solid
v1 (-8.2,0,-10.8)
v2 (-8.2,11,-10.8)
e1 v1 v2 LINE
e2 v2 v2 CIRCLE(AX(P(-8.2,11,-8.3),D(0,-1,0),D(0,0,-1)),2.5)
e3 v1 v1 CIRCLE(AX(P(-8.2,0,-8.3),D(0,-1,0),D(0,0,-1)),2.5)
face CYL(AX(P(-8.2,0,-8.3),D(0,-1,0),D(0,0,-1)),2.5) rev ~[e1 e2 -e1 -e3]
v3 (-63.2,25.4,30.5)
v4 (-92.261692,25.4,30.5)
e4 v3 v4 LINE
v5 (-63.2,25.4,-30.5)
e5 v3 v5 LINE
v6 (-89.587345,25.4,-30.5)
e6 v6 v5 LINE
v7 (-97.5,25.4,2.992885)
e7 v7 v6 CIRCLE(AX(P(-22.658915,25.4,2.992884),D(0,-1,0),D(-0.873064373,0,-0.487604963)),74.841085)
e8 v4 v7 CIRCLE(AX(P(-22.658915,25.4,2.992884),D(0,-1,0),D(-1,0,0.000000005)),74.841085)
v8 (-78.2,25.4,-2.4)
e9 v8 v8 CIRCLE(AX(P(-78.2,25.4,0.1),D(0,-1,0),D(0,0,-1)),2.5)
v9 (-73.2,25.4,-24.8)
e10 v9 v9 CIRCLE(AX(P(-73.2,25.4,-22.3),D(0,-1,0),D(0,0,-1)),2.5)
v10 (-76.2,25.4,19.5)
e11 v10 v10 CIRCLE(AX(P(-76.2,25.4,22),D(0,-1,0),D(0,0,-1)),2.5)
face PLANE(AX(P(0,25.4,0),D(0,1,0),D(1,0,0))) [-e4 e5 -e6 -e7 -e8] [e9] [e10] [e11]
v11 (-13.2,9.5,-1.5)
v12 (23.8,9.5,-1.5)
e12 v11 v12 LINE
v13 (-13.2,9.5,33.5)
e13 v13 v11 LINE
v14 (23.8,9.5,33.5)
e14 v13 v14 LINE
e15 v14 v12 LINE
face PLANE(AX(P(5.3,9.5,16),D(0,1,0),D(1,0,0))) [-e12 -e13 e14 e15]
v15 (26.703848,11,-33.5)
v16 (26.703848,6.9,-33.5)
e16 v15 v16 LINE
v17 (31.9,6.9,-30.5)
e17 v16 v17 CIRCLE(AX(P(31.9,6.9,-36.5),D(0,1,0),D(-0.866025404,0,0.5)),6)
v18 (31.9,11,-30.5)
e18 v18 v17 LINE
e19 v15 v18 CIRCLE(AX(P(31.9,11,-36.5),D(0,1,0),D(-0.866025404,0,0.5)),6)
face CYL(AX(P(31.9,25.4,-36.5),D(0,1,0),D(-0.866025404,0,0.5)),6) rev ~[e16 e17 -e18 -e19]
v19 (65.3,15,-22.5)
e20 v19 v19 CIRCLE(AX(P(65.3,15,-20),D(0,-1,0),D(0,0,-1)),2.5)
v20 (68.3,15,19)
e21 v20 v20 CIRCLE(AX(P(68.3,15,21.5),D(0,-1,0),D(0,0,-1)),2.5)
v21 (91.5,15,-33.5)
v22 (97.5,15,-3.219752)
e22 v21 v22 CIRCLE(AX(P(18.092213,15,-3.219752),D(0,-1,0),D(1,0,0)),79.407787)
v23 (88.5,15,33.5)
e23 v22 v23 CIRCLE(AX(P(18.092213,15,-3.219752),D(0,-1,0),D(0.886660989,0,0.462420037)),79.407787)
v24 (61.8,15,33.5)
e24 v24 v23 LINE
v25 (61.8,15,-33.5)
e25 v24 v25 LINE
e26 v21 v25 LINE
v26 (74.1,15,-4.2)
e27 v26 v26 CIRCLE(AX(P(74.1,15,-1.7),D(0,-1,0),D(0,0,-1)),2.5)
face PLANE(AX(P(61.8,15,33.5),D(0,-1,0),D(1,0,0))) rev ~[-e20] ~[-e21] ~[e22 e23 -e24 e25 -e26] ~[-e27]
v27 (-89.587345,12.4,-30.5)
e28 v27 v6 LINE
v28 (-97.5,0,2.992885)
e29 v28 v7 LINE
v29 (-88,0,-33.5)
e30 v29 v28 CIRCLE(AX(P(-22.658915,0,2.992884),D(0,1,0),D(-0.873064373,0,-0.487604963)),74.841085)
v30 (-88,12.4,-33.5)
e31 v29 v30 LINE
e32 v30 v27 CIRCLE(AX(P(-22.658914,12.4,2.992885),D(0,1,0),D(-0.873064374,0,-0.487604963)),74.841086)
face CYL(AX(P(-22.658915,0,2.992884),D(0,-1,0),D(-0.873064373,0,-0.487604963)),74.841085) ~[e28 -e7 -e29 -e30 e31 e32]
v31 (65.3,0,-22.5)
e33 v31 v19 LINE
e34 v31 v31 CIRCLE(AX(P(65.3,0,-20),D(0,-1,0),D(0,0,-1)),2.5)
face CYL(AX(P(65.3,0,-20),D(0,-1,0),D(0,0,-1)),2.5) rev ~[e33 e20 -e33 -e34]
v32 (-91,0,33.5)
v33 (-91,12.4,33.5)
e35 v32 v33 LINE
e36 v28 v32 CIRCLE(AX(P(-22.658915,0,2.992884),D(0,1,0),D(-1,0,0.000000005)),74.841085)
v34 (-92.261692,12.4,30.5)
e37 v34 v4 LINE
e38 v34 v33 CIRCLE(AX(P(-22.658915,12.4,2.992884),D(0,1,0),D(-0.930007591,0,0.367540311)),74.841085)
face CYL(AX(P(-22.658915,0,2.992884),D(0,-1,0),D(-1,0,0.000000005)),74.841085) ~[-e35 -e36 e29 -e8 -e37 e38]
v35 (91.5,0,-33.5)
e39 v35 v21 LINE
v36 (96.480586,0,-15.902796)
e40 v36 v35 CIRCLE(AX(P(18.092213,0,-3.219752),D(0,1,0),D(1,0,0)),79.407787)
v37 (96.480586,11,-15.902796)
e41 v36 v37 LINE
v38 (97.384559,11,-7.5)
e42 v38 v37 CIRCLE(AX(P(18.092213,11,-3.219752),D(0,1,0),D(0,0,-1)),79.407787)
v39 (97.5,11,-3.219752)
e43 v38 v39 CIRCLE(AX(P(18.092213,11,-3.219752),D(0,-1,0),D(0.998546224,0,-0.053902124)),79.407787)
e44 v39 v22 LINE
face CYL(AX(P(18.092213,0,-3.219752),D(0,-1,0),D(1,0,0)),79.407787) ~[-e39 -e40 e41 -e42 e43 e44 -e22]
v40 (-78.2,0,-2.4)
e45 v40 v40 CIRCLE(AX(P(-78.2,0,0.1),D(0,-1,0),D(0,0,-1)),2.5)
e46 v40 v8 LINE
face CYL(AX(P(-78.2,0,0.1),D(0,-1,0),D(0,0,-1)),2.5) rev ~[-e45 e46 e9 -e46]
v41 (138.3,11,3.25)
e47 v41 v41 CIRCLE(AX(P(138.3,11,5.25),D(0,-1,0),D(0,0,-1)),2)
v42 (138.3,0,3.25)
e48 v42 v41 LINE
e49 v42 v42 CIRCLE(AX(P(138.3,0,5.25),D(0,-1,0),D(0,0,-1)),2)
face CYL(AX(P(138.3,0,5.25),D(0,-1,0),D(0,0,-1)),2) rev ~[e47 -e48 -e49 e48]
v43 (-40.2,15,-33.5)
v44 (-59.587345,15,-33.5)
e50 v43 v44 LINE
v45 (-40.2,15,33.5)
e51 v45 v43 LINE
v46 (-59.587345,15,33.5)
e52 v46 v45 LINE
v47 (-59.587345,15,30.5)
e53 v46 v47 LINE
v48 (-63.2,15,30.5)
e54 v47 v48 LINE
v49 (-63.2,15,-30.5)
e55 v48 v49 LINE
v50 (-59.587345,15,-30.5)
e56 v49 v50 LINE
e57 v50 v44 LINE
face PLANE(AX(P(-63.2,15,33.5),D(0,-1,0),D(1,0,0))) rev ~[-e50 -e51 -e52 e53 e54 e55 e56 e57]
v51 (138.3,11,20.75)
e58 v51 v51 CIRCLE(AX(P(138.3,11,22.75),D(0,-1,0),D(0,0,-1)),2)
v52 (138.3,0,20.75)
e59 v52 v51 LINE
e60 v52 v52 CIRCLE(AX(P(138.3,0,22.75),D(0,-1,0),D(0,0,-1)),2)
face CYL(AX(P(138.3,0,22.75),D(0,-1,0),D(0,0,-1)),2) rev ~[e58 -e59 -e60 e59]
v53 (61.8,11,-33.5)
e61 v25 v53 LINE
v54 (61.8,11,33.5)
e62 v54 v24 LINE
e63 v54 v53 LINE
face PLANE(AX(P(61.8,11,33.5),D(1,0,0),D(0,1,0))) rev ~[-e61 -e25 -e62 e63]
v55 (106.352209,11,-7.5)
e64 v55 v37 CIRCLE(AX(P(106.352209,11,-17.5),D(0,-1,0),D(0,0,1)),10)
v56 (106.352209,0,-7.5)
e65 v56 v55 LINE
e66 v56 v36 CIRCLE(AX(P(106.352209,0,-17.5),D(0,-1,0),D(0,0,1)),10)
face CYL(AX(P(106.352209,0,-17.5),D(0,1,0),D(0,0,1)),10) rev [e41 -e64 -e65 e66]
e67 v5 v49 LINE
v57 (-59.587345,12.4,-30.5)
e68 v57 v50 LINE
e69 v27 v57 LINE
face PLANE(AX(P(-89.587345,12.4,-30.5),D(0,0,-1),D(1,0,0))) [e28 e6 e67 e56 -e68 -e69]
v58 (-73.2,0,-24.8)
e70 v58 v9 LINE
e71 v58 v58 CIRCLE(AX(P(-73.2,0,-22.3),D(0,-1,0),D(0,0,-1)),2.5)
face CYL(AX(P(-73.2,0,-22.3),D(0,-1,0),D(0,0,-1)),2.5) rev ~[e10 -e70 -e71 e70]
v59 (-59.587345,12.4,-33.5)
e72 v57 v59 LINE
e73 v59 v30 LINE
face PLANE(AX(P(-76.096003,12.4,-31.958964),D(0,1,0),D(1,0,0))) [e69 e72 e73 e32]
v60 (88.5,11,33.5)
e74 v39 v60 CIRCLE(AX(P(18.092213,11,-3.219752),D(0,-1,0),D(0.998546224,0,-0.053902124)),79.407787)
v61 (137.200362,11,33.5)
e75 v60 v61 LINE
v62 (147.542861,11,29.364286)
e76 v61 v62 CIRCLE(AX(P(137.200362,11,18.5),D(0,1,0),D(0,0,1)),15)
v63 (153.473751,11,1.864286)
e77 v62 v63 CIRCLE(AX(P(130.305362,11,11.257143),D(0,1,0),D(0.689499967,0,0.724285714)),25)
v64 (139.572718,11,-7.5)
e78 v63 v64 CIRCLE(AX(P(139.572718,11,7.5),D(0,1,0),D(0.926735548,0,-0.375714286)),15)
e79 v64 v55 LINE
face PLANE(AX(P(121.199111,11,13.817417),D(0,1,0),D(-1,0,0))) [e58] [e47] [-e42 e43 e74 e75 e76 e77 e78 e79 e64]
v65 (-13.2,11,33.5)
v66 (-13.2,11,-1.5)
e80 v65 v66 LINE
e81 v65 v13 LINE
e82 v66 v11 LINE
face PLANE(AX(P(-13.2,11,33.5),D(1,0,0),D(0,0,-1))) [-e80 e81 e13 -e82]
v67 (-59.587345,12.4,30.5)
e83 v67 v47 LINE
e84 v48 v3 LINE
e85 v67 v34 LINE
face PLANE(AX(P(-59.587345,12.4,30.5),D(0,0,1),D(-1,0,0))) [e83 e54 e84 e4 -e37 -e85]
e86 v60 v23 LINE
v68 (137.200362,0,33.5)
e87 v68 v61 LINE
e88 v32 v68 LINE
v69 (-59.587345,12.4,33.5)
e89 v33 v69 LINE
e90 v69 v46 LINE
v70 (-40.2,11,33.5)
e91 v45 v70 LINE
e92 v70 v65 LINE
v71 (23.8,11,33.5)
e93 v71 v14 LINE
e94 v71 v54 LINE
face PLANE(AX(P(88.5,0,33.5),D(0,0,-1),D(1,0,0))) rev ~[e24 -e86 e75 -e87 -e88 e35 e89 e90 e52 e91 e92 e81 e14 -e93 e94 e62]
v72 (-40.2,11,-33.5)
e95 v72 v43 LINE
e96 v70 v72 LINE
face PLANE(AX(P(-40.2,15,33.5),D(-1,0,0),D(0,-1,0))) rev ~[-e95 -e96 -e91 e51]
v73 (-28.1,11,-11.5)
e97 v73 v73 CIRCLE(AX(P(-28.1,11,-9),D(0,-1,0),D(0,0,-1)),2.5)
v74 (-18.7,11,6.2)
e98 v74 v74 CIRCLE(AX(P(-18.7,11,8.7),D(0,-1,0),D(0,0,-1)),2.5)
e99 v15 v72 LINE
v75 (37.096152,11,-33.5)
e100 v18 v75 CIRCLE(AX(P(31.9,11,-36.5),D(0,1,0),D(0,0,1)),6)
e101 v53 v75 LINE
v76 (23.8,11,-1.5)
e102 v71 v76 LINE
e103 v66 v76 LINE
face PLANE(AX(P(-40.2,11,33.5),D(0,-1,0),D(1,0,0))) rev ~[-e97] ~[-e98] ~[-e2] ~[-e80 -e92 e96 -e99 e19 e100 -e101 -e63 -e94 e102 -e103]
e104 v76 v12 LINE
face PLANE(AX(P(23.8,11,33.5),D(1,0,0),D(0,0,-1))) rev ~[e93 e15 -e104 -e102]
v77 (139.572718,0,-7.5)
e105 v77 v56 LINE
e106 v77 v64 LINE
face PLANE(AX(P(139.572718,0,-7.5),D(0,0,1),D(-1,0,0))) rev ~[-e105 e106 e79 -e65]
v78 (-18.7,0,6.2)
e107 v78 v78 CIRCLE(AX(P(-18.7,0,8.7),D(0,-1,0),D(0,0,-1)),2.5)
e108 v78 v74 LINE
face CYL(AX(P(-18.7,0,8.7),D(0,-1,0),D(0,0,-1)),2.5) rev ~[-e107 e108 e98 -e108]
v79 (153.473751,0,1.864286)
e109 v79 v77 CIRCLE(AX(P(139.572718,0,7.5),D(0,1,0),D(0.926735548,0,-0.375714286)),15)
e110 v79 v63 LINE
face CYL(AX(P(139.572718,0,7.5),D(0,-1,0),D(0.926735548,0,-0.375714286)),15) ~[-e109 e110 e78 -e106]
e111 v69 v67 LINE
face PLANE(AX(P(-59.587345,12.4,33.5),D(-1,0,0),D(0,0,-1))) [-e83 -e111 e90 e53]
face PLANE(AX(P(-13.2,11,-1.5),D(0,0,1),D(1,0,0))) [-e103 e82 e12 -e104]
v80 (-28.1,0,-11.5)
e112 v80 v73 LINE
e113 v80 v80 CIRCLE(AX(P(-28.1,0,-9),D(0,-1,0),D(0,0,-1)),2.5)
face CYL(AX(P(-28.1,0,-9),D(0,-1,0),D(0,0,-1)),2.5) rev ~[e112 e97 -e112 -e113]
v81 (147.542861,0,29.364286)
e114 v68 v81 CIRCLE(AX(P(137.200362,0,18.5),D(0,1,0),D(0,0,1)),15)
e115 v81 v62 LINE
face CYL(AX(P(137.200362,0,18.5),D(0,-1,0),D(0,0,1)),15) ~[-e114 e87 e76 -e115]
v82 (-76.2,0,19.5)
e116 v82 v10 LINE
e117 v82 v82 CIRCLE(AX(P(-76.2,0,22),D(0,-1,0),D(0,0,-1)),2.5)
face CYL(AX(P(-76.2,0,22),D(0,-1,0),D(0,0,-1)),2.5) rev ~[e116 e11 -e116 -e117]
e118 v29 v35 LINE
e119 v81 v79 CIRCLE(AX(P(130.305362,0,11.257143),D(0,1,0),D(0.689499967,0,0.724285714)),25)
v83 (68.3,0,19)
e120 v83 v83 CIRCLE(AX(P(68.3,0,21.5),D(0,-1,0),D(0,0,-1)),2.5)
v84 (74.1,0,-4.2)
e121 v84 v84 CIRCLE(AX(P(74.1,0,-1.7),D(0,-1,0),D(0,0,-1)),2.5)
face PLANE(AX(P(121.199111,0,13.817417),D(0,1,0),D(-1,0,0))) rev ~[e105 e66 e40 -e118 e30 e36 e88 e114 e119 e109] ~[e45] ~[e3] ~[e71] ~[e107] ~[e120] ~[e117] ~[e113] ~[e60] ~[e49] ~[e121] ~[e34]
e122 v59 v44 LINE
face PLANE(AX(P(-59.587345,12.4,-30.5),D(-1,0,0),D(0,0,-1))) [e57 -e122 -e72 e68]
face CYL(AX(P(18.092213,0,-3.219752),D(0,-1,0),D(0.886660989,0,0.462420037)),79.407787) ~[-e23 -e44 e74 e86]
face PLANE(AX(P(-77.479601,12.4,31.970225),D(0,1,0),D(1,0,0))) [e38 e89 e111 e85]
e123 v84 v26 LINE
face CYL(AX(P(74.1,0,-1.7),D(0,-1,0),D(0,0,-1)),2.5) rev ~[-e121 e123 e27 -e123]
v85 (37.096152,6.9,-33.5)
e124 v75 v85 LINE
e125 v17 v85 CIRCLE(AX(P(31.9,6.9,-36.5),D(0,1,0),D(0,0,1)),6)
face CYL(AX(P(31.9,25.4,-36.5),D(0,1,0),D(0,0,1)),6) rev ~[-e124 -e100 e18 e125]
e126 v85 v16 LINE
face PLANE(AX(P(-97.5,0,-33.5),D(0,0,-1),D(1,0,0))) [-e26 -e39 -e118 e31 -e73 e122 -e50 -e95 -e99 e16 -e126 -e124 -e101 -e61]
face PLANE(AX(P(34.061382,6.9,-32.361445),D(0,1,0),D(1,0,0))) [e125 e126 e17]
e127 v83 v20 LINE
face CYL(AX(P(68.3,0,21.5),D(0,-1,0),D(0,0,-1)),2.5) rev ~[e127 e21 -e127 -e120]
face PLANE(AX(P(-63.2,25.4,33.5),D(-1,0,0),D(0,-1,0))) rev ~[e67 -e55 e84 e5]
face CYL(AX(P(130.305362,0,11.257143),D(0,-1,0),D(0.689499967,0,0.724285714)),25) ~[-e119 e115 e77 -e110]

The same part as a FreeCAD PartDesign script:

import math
import FreeCAD as App
import Part
import Sketcher


def edges_at(feature, points):
    """Names of the edges that pass closest to the given points."""
    edges = feature.Shape.Edges
    near = lambda p: min(range(len(edges)), key=lambda i: edges[i].distToShape(Part.Vertex(*p))[0])
    return sorted({f"Edge{near(p) + 1}" for p in points})

doc = App.newDocument("Part")
params = doc.addObject("Spreadsheet::Sheet", "Params")
for row, (alias, value) in enumerate([
    ("sketch1_width", "195 mm"),
    ("sketch1_height", "67 mm"),
    ("pad1_length", "25.4 mm"),
    ("sketch2_width", "9 mm"),
    ("sketch2_width2", "6 mm"),
    ("sketch2_width3", "9.5 mm"),
    ("sketch2_width4", "6.5 mm"),
    ("sketch3_width", "102 mm"),
    ("sketch3_width2", "23 mm"),
    ("sketch3_height", "4 mm"),
    ("sketch3_width3", "160.7 mm"),
    ("sketch3_height2", "10.4 mm"),
    ("sketch4_width", "30 mm"),
    ("sketch4_height", "3 mm"),
    ("pocket3_length", "13 mm"),
    ("sketch5_diameter", "5 mm"),
    ("sketch6_width", "37 mm"),
    ("sketch6_height", "35 mm"),
    ("pocket5_length", "1.5 mm"),
    ("sketch7_radius", "6 mm"),
    ("pocket6_length", "18.5 mm"),
    ("sketch8_diameter", "4 mm"),
    ("sketch8_radius", "15 mm"),
    ("sketch8_radius2", "25 mm"),
    ("pad2_length", "11 mm"),
    ("fillet_radius", "10 mm"),
], start=1):
    params.set(f"A{row}", alias)
    params.set(f"B{row}", "=" + value)
    params.setAlias(f"B{row}", alias)

body = doc.addObject("PartDesign::Body", "Body")

sketch1 = doc.addObject("Sketcher::SketchObject", "Sketch")
body.addObject(sketch1)
sketch1.AttachmentSupport = (doc.XZ_Plane, [""])
sketch1.MapMode = "FlatFace"
sketch1.addGeometry(Part.LineSegment(App.Vector(-98, -34, 0), App.Vector(-98, 34, 0)), False)
sketch1.addGeometry(Part.LineSegment(App.Vector(-98, 34, 0), App.Vector(98, 34, 0)), False)
sketch1.addGeometry(Part.LineSegment(App.Vector(98, 34, 0), App.Vector(98, -34, 0)), False)
sketch1.addGeometry(Part.LineSegment(App.Vector(98, -34, 0), App.Vector(-98, -34, 0)), False)
sketch1.addConstraint(Sketcher.Constraint("Coincident", 0, 2, 1, 1))
sketch1.addConstraint(Sketcher.Constraint("Coincident", 1, 2, 2, 1))
sketch1.addConstraint(Sketcher.Constraint("Coincident", 2, 2, 3, 1))
sketch1.addConstraint(Sketcher.Constraint("Coincident", 3, 2, 0, 1))
sketch1.addConstraint(Sketcher.Constraint("Vertical", 0))
sketch1.addConstraint(Sketcher.Constraint("Horizontal", 1))
sketch1.addConstraint(Sketcher.Constraint("Vertical", 2))
sketch1.addConstraint(Sketcher.Constraint("Horizontal", 3))
sketch1.addConstraint(Sketcher.Constraint("Symmetric", 0, 2, 2, 2, -1, 1))
sketch1.addConstraint(Sketcher.Constraint("DistanceX", 1, 1, 1, 2, 195.0))
sketch1.addConstraint(Sketcher.Constraint("DistanceY", 0, 1, 0, 2, 67.0))
sketch1.setExpression("Constraints[9]", "Params.sketch1_width")
sketch1.setExpression("Constraints[10]", "Params.sketch1_height")
pad1 = doc.addObject("PartDesign::Pad", "Pad")
body.addObject(pad1)
pad1.Profile = sketch1
pad1.setExpression("Length", "Params.pad1_length")
pad1.Reversed = True

sketch2 = doc.addObject("Sketcher::SketchObject", "Sketch001")
body.addObject(sketch2)
sketch2.AttachmentSupport = (doc.XZ_Plane, [""])
sketch2.MapMode = "FlatFace"
sketch2.addGeometry(Part.LineSegment(App.Vector(98, -3, 0), App.Vector(98, 34, 0)), False)
sketch2.addGeometry(Part.LineSegment(App.Vector(98, 34, 0), App.Vector(88, 34, 0)), False)
sketch2.addGeometry(Part.ArcOfCircle(Part.Circle(App.Vector(18, -3, 0), App.Vector(0, 0, 1), 79), math.radians(0), math.radians(28)), False)
sketch2.addGeometry(Part.LineSegment(App.Vector(98, -34, 0), App.Vector(98, -3, 0)), False)
sketch2.addGeometry(Part.ArcOfCircle(Part.Circle(App.Vector(18, -3, 0), App.Vector(0, 0, 1), 79), math.radians(-22), math.radians(0)), False)
sketch2.addGeometry(Part.LineSegment(App.Vector(92, -34, 0), App.Vector(98, -34, 0)), False)
sketch2.addGeometry(Part.ArcOfCircle(Part.Circle(App.Vector(-23, 3, 0), App.Vector(0, 0, 1), 75), math.radians(180), math.radians(209)), False)
sketch2.addGeometry(Part.LineSegment(App.Vector(-98, 3, 0), App.Vector(-98, -34, 0)), False)
sketch2.addGeometry(Part.LineSegment(App.Vector(-98, -34, 0), App.Vector(-88, -34, 0)), False)
sketch2.addGeometry(Part.ArcOfCircle(Part.Circle(App.Vector(-23, 3, 0), App.Vector(0, 0, 1), 75), math.radians(156), math.radians(180)), False)
sketch2.addGeometry(Part.LineSegment(App.Vector(-91, 34, 0), App.Vector(-98, 34, 0)), False)
sketch2.addGeometry(Part.LineSegment(App.Vector(-98, 34, 0), App.Vector(-98, 3, 0)), False)
sketch2.addConstraint(Sketcher.Constraint("Coincident", 0, 2, 1, 1))
sketch2.addConstraint(Sketcher.Constraint("Coincident", 1, 2, 2, 2))
sketch2.addConstraint(Sketcher.Constraint("Tangent", 2, 1, 0, 1))
sketch2.addConstraint(Sketcher.Constraint("Tangent", 3, 2, 4, 2))
sketch2.addConstraint(Sketcher.Constraint("Coincident", 4, 1, 5, 1))
sketch2.addConstraint(Sketcher.Constraint("Coincident", 5, 2, 3, 1))
sketch2.addConstraint(Sketcher.Constraint("Tangent", 6, 1, 7, 1))
sketch2.addConstraint(Sketcher.Constraint("Coincident", 7, 2, 8, 1))
sketch2.addConstraint(Sketcher.Constraint("Coincident", 8, 2, 6, 2))
sketch2.addConstraint(Sketcher.Constraint("Coincident", 9, 1, 10, 1))
sketch2.addConstraint(Sketcher.Constraint("Coincident", 10, 2, 11, 1))
sketch2.addConstraint(Sketcher.Constraint("Tangent", 11, 2, 9, 2))
sketch2.addConstraint(Sketcher.Constraint("Vertical", 0))
sketch2.addConstraint(Sketcher.Constraint("Horizontal", 1))
sketch2.addConstraint(Sketcher.Constraint("Vertical", 3))
sketch2.addConstraint(Sketcher.Constraint("Horizontal", 5))
sketch2.addConstraint(Sketcher.Constraint("Vertical", 7))
sketch2.addConstraint(Sketcher.Constraint("Horizontal", 8))
sketch2.addConstraint(Sketcher.Constraint("Horizontal", 10))
sketch2.addConstraint(Sketcher.Constraint("Vertical", 11))
sketch2.addConstraint(Sketcher.Constraint("Coincident", 4, 3, 2, 3))
sketch2.addConstraint(Sketcher.Constraint("Coincident", 9, 3, 6, 3))
sketch2.addConstraint(Sketcher.Constraint("Equal", 2, 4))
sketch2.addConstraint(Sketcher.Constraint("Equal", 6, 9))
sketch2.addConstraint(Sketcher.Constraint("Symmetric", 0, 2, 7, 2, -1, 1))
sketch2.addConstraint(Sketcher.Constraint("Horizontal", 5, 2, 7, 2))
sketch2.addConstraint(Sketcher.Constraint("Horizontal", 1, 2, 9, 1))
sketch2.addConstraint(Sketcher.Constraint("DistanceX", 1, 2, 1, 1, 9.0))
sketch2.addConstraint(Sketcher.Constraint("DistanceX", 5, 1, 5, 2, 6.0))
sketch2.addConstraint(Sketcher.Constraint("DistanceX", 8, 1, 8, 2, 9.5))
sketch2.addConstraint(Sketcher.Constraint("DistanceX", 10, 2, 10, 1, 6.5))
sketch2.addConstraint(Sketcher.Constraint("DistanceX", 8, 2, -1, 1, 88.0))
sketch2.addConstraint(Sketcher.Constraint("DistanceY", 4, 1, 1, 2, 67.0))
sketch2.setExpression("Constraints[27]", "Params.sketch2_width")
sketch2.setExpression("Constraints[28]", "Params.sketch2_width2")
sketch2.setExpression("Constraints[29]", "Params.sketch2_width3")
sketch2.setExpression("Constraints[30]", "Params.sketch2_width4")
pocket1 = doc.addObject("PartDesign::Pocket", "Pocket")
body.addObject(pocket1)
pocket1.Profile = sketch2
pocket1.Type = "ThroughAll"

sketch3 = doc.addObject("Sketcher::SketchObject", "Sketch002")
body.addObject(sketch3)
sketch3.AttachmentSupport = (doc.XY_Plane, [""])
sketch3.MapMode = "FlatFace"
sketch3.AttachmentOffset = App.Placement(App.Vector(0, 0, 33.5), App.Rotation())
sketch3.addGeometry(Part.LineSegment(App.Vector(-63.2, 15, 0), App.Vector(-63.2, 25.4, 0)), False)
sketch3.addGeometry(Part.LineSegment(App.Vector(-63.2, 25.4, 0), App.Vector(97.5, 25.4, 0)), False)
sketch3.addGeometry(Part.LineSegment(App.Vector(97.5, 25.4, 0), App.Vector(97.5, 15, 0)), False)
sketch3.addGeometry(Part.LineSegment(App.Vector(97.5, 15, 0), App.Vector(61.8, 15, 0)), False)
sketch3.addGeometry(Part.LineSegment(App.Vector(61.8, 15, 0), App.Vector(61.8, 11, 0)), False)
sketch3.addGeometry(Part.LineSegment(App.Vector(61.8, 11, 0), App.Vector(-40.2, 11, 0)), False)
sketch3.addGeometry(Part.LineSegment(App.Vector(-40.2, 11, 0), App.Vector(-40.2, 15, 0)), False)
sketch3.addGeometry(Part.LineSegment(App.Vector(-40.2, 15, 0), App.Vector(-63.2, 15, 0)), False)
sketch3.addConstraint(Sketcher.Constraint("Coincident", 0, 2, 1, 1))
sketch3.addConstraint(Sketcher.Constraint("Coincident", 1, 2, 2, 1))
sketch3.addConstraint(Sketcher.Constraint("Coincident", 2, 2, 3, 1))
sketch3.addConstraint(Sketcher.Constraint("Coincident", 3, 2, 4, 1))
sketch3.addConstraint(Sketcher.Constraint("Coincident", 4, 2, 5, 1))
sketch3.addConstraint(Sketcher.Constraint("Coincident", 5, 2, 6, 1))
sketch3.addConstraint(Sketcher.Constraint("Coincident", 6, 2, 7, 1))
sketch3.addConstraint(Sketcher.Constraint("Coincident", 7, 2, 0, 1))
sketch3.addConstraint(Sketcher.Constraint("Vertical", 0))
sketch3.addConstraint(Sketcher.Constraint("Horizontal", 1))
sketch3.addConstraint(Sketcher.Constraint("Vertical", 2))
sketch3.addConstraint(Sketcher.Constraint("Horizontal", 3))
sketch3.addConstraint(Sketcher.Constraint("Vertical", 4))
sketch3.addConstraint(Sketcher.Constraint("Horizontal", 5))
sketch3.addConstraint(Sketcher.Constraint("Vertical", 6))
sketch3.addConstraint(Sketcher.Constraint("Horizontal", 7))
sketch3.addConstraint(Sketcher.Constraint("Horizontal", 3, 2, 6, 2))
sketch3.addConstraint(Sketcher.Constraint("DistanceX", 5, 2, 5, 1, 102.0))
sketch3.addConstraint(Sketcher.Constraint("DistanceX", 7, 2, 7, 1, 23.0))
sketch3.addConstraint(Sketcher.Constraint("DistanceY", 4, 2, 4, 1, 4.0))
sketch3.addConstraint(Sketcher.Constraint("DistanceX", 1, 1, 1, 2, 160.7))
sketch3.addConstraint(Sketcher.Constraint("DistanceY", 0, 1, 0, 2, 10.4))
sketch3.addConstraint(Sketcher.Constraint("DistanceY", -1, 1, 2, 2, 15.0))
sketch3.addConstraint(Sketcher.Constraint("DistanceX", 0, 2, -1, 1, 63.2))
sketch3.setExpression("Constraints[17]", "Params.sketch3_width")
sketch3.setExpression("Constraints[18]", "Params.sketch3_width2")
sketch3.setExpression("Constraints[19]", "Params.sketch3_height")
sketch3.setExpression("Constraints[20]", "Params.sketch3_width3")
sketch3.setExpression("Constraints[21]", "Params.sketch3_height2")
pocket2 = doc.addObject("PartDesign::Pocket", "Pocket001")
body.addObject(pocket2)
pocket2.Profile = sketch3
pocket2.Type = "ThroughAll"

sketch4 = doc.addObject("Sketcher::SketchObject", "Sketch003")
body.addObject(sketch4)
sketch4.AttachmentSupport = (doc.XZ_Plane, [""])
sketch4.MapMode = "FlatFace"
sketch4.AttachmentOffset = App.Placement(App.Vector(0, 0, -12.4), App.Rotation())
sketch4.addGeometry(Part.ArcOfCircle(Part.Circle(App.Vector(-22.7, 3, 0), App.Vector(0, 0, 1), 74.8), math.radians(-153.42), math.radians(-150.82)), False)
sketch4.addGeometry(Part.LineSegment(App.Vector(-89.6, -30.5, 0), App.Vector(-59.6, -30.5, 0)), False)
sketch4.addGeometry(Part.LineSegment(App.Vector(-59.6, -30.5, 0), App.Vector(-59.6, -33.5, 0)), False)
sketch4.addGeometry(Part.LineSegment(App.Vector(-59.6, -33.5, 0), App.Vector(-88, -33.5, 0)), False)
sketch4.addGeometry(Part.ArcOfCircle(Part.Circle(App.Vector(-22.7, 3, 0), App.Vector(0, 0, 1), 74.8), math.radians(155.94), math.radians(158.44)), False)
sketch4.addGeometry(Part.LineSegment(App.Vector(-91, 33.5, 0), App.Vector(-59.6, 33.5, 0)), False)
sketch4.addGeometry(Part.LineSegment(App.Vector(-59.6, 33.5, 0), App.Vector(-59.6, 30.5, 0)), False)
sketch4.addGeometry(Part.LineSegment(App.Vector(-59.6, 30.5, 0), App.Vector(-92.3, 30.5, 0)), False)
sketch4.addConstraint(Sketcher.Constraint("Coincident", 0, 1, 1, 1))
sketch4.addConstraint(Sketcher.Constraint("Coincident", 1, 2, 2, 1))
sketch4.addConstraint(Sketcher.Constraint("Coincident", 2, 2, 3, 1))
sketch4.addConstraint(Sketcher.Constraint("Coincident", 3, 2, 0, 2))
sketch4.addConstraint(Sketcher.Constraint("Coincident", 4, 1, 5, 1))
sketch4.addConstraint(Sketcher.Constraint("Coincident", 5, 2, 6, 1))
sketch4.addConstraint(Sketcher.Constraint("Coincident", 6, 2, 7, 1))
sketch4.addConstraint(Sketcher.Constraint("Coincident", 7, 2, 4, 2))
sketch4.addConstraint(Sketcher.Constraint("Horizontal", 1))
sketch4.addConstraint(Sketcher.Constraint("Vertical", 2))
sketch4.addConstraint(Sketcher.Constraint("Horizontal", 3))
sketch4.addConstraint(Sketcher.Constraint("Horizontal", 5))
sketch4.addConstraint(Sketcher.Constraint("Vertical", 6))
sketch4.addConstraint(Sketcher.Constraint("Horizontal", 7))
sketch4.addConstraint(Sketcher.Constraint("Coincident", 4, 3, 0, 3))
sketch4.addConstraint(Sketcher.Constraint("Equal", 0, 4))
sketch4.addConstraint(Sketcher.Constraint("Symmetric", 2, 2, 5, 2, -1))
sketch4.addConstraint(Sketcher.Constraint("Equal", 2, 6))
sketch4.addConstraint(Sketcher.Constraint("DistanceX", 1, 1, 1, 2, 30.0))
sketch4.addConstraint(Sketcher.Constraint("DistanceY", 2, 2, 2, 1, 3.0))
sketch4.addConstraint(Sketcher.Constraint("DistanceX", 3, 2, -1, 1, 88.0))
sketch4.addConstraint(Sketcher.Constraint("DistanceX", 4, 1, -1, 1, 91.0))
sketch4.addConstraint(Sketcher.Constraint("DistanceY", 0, 1, 4, 1, 64.0))
sketch4.addConstraint(Sketcher.Constraint("Radius", 0, 74.841086))
sketch4.setExpression("Constraints[18]", "Params.sketch4_width")
sketch4.setExpression("Constraints[19]", "Params.sketch4_height")
pocket3 = doc.addObject("PartDesign::Pocket", "Pocket002")
body.addObject(pocket3)
pocket3.Profile = sketch4
pocket3.setExpression("Length", "Params.pocket3_length")

sketch5 = doc.addObject("Sketcher::SketchObject", "Sketch004")
body.addObject(sketch5)
sketch5.AttachmentSupport = (doc.XZ_Plane, [""])
sketch5.MapMode = "FlatFace"
sketch5.addGeometry(Part.Circle(App.Vector(-28.1, -9, 0), App.Vector(0, 0, 1), 2.5), False)
sketch5.addGeometry(Part.Circle(App.Vector(-8.2, -8.3, 0), App.Vector(0, 0, 1), 2.5), False)
sketch5.addGeometry(Part.Circle(App.Vector(-18.7, 8.7, 0), App.Vector(0, 0, 1), 2.5), False)
sketch5.addGeometry(Part.Circle(App.Vector(-76.2, 22, 0), App.Vector(0, 0, 1), 2.5), False)
sketch5.addGeometry(Part.Circle(App.Vector(-78.2, 0.1, 0), App.Vector(0, 0, 1), 2.5), False)
sketch5.addGeometry(Part.Circle(App.Vector(-73.2, -22.3, 0), App.Vector(0, 0, 1), 2.5), False)
sketch5.addGeometry(Part.Circle(App.Vector(65.3, -20, 0), App.Vector(0, 0, 1), 2.5), False)
sketch5.addGeometry(Part.Circle(App.Vector(74.1, -1.7, 0), App.Vector(0, 0, 1), 2.5), False)
sketch5.addGeometry(Part.Circle(App.Vector(68.3, 21.5, 0), App.Vector(0, 0, 1), 2.5), False)
sketch5.addConstraint(Sketcher.Constraint("Equal", 0, 1))
sketch5.addConstraint(Sketcher.Constraint("Equal", 1, 2))
sketch5.addConstraint(Sketcher.Constraint("Equal", 2, 3))
sketch5.addConstraint(Sketcher.Constraint("Equal", 3, 4))
sketch5.addConstraint(Sketcher.Constraint("Equal", 4, 5))
sketch5.addConstraint(Sketcher.Constraint("Equal", 5, 6))
sketch5.addConstraint(Sketcher.Constraint("Equal", 6, 7))
sketch5.addConstraint(Sketcher.Constraint("Equal", 7, 8))
sketch5.addConstraint(Sketcher.Constraint("Diameter", 0, 5.0))
sketch5.addConstraint(Sketcher.Constraint("DistanceY", 0, 3, -1, 1, 9.0))
sketch5.addConstraint(Sketcher.Constraint("DistanceY", -1, 1, 3, 3, 22.0))
sketch5.addConstraint(Sketcher.Constraint("DistanceY", 6, 3, -1, 1, 20.0))
sketch5.addConstraint(Sketcher.Constraint("DistanceY", 1, 3, 2, 3, 17.0))
sketch5.addConstraint(Sketcher.Constraint("DistanceX", 3, 3, 1, 3, 68.0))
sketch5.addConstraint(Sketcher.Constraint("DistanceX", 4, 3, 3, 3, 2.0))
sketch5.addConstraint(Sketcher.Constraint("DistanceX", 4, 3, 5, 3, 5.0))
sketch5.addConstraint(Sketcher.Constraint("DistanceY", 5, 3, 2, 3, 31.0))
sketch5.addConstraint(Sketcher.Constraint("DistanceX", 2, 3, 6, 3, 84.0))
sketch5.addConstraint(Sketcher.Constraint("DistanceX", 6, 3, 8, 3, 3.0))
sketch5.addConstraint(Sketcher.Constraint("DistanceX", 0, 3, -1, 1, 28.1))
sketch5.addConstraint(Sketcher.Constraint("DistanceX", 1, 3, -1, 1, 8.2))
sketch5.addConstraint(Sketcher.Constraint("DistanceY", 1, 3, -1, 1, 8.3))
sketch5.addConstraint(Sketcher.Constraint("DistanceX", 2, 3, -1, 1, 18.7))
sketch5.addConstraint(Sketcher.Constraint("DistanceY", -1, 1, 4, 3, 0.1))
sketch5.addConstraint(Sketcher.Constraint("DistanceX", -1, 1, 7, 3, 74.1))
sketch5.addConstraint(Sketcher.Constraint("DistanceY", 7, 3, -1, 1, 1.7))
sketch5.addConstraint(Sketcher.Constraint("DistanceY", -1, 1, 8, 3, 21.5))
sketch5.setExpression("Constraints[8]", "Params.sketch5_diameter")
pocket4 = doc.addObject("PartDesign::Pocket", "Pocket003")
body.addObject(pocket4)
pocket4.Profile = sketch5
pocket4.Type = "ThroughAll"

sketch6 = doc.addObject("Sketcher::SketchObject", "Sketch005")
body.addObject(sketch6)
sketch6.AttachmentSupport = (doc.XZ_Plane, [""])
sketch6.MapMode = "FlatFace"
sketch6.AttachmentOffset = App.Placement(App.Vector(0, 0, -11), App.Rotation())
sketch6.addGeometry(Part.LineSegment(App.Vector(-13, -2, 0), App.Vector(-13, 34, 0)), False)
sketch6.addGeometry(Part.LineSegment(App.Vector(-13, 34, 0), App.Vector(24, 34, 0)), False)
sketch6.addGeometry(Part.LineSegment(App.Vector(24, 34, 0), App.Vector(24, -2, 0)), False)
sketch6.addGeometry(Part.LineSegment(App.Vector(24, -2, 0), App.Vector(-13, -2, 0)), False)
sketch6.addConstraint(Sketcher.Constraint("Coincident", 0, 2, 1, 1))
sketch6.addConstraint(Sketcher.Constraint("Coincident", 1, 2, 2, 1))
sketch6.addConstraint(Sketcher.Constraint("Coincident", 2, 2, 3, 1))
sketch6.addConstraint(Sketcher.Constraint("Coincident", 3, 2, 0, 1))
sketch6.addConstraint(Sketcher.Constraint("Vertical", 0))
sketch6.addConstraint(Sketcher.Constraint("Horizontal", 1))
sketch6.addConstraint(Sketcher.Constraint("Vertical", 2))
sketch6.addConstraint(Sketcher.Constraint("Horizontal", 3))
sketch6.addConstraint(Sketcher.Constraint("DistanceX", 1, 1, 1, 2, 37.0))
sketch6.addConstraint(Sketcher.Constraint("DistanceY", 0, 1, 0, 2, 35.0))
sketch6.addConstraint(Sketcher.Constraint("DistanceX", 0, 2, -1, 1, 13.2))
sketch6.addConstraint(Sketcher.Constraint("DistanceY", -1, 1, 0, 2, 33.5))
sketch6.setExpression("Constraints[8]", "Params.sketch6_width")
sketch6.setExpression("Constraints[9]", "Params.sketch6_height")
pocket5 = doc.addObject("PartDesign::Pocket", "Pocket004")
body.addObject(pocket5)
pocket5.Profile = sketch6
pocket5.setExpression("Length", "Params.pocket5_length")
pocket5.Reversed = True

sketch7 = doc.addObject("Sketcher::SketchObject", "Sketch006")
body.addObject(sketch7)
sketch7.AttachmentSupport = (doc.XZ_Plane, [""])
sketch7.MapMode = "FlatFace"
sketch7.AttachmentOffset = App.Placement(App.Vector(0, 0, -25.4), App.Rotation())
sketch7.addGeometry(Part.LineSegment(App.Vector(37, -34, 0), App.Vector(27, -34, 0)), False)
sketch7.addGeometry(Part.ArcOfCircle(Part.Circle(App.Vector(32, -36, 0), App.Vector(0, 0, 1), 6), math.radians(90), math.radians(150)), False)
sketch7.addGeometry(Part.ArcOfCircle(Part.Circle(App.Vector(32, -36, 0), App.Vector(0, 0, 1), 6), math.radians(30), math.radians(90)), False)
sketch7.addConstraint(Sketcher.Constraint("Coincident", 0, 2, 1, 2))
sketch7.addConstraint(Sketcher.Constraint("Tangent", 1, 1, 2, 2))
sketch7.addConstraint(Sketcher.Constraint("Coincident", 2, 1, 0, 1))
sketch7.addConstraint(Sketcher.Constraint("Horizontal", 0))
sketch7.addConstraint(Sketcher.Constraint("Equal", 1, 2))
sketch7.addConstraint(Sketcher.Constraint("Vertical", 2, 3, 1, 1))
sketch7.addConstraint(Sketcher.Constraint("Radius", 1, 6.0))
sketch7.addConstraint(Sketcher.Constraint("DistanceY", 1, 3, 0, 2, 3.0))
sketch7.addConstraint(Sketcher.Constraint("DistanceX", -1, 1, 1, 3, 31.9))
sketch7.addConstraint(Sketcher.Constraint("DistanceY", 1, 3, -1, 1, 36.5))
sketch7.setExpression("Constraints[6]", "Params.sketch7_radius")
pocket6 = doc.addObject("PartDesign::Pocket", "Pocket005")
body.addObject(pocket6)
pocket6.Profile = sketch7
pocket6.setExpression("Length", "Params.pocket6_length")
pocket6.Reversed = True

sketch8 = doc.addObject("Sketcher::SketchObject", "Sketch007")
body.addObject(sketch8)
sketch8.AttachmentSupport = (doc.XZ_Plane, [""])
sketch8.MapMode = "FlatFace"
sketch8.addGeometry(Part.LineSegment(App.Vector(137.2, 33.5, 0), App.Vector(88.5, 33.5, 0)), False)
sketch8.addGeometry(Part.ArcOfCircle(Part.Circle(App.Vector(18.1, -3.2, 0), App.Vector(0, 0, 1), 79.4), math.radians(-3), math.radians(28)), False)
sketch8.addGeometry(Part.LineSegment(App.Vector(97.4, -7.5, 0), App.Vector(139.6, -7.5, 0)), False)
sketch8.addGeometry(Part.ArcOfCircle(Part.Circle(App.Vector(139.6, 7.5, 0), App.Vector(0, 0, 1), 15), math.radians(-90), math.radians(-22)), False)
sketch8.addGeometry(Part.ArcOfCircle(Part.Circle(App.Vector(130.3, 11.3, 0), App.Vector(0, 0, 1), 25), math.radians(-22), math.radians(46)), False)
sketch8.addGeometry(Part.ArcOfCircle(Part.Circle(App.Vector(137.2, 18.5, 0), App.Vector(0, 0, 1), 15), math.radians(46), math.radians(90)), False)
sketch8.addGeometry(Part.Circle(App.Vector(138.3, 5.2, 0), App.Vector(0, 0, 1), 2), False)
sketch8.addGeometry(Part.Circle(App.Vector(138.3, 22.8, 0), App.Vector(0, 0, 1), 2), False)
sketch8.addConstraint(Sketcher.Constraint("Coincident", 0, 2, 1, 2))
sketch8.addConstraint(Sketcher.Constraint("Coincident", 1, 1, 2, 1))
sketch8.addConstraint(Sketcher.Constraint("Tangent", 2, 2, 3, 1))
sketch8.addConstraint(Sketcher.Constraint("Tangent", 3, 2, 4, 1))
sketch8.addConstraint(Sketcher.Constraint("Tangent", 4, 2, 5, 1))
sketch8.addConstraint(Sketcher.Constraint("Tangent", 5, 2, 0, 1))
sketch8.addConstraint(Sketcher.Constraint("Horizontal", 0))
sketch8.addConstraint(Sketcher.Constraint("Horizontal", 2))
sketch8.addConstraint(Sketcher.Constraint("Equal", 3, 5))
sketch8.addConstraint(Sketcher.Constraint("Equal", 6, 7))
sketch8.addConstraint(Sketcher.Constraint("Vertical", 6, 3, 7, 3))
sketch8.addConstraint(Sketcher.Constraint("Diameter", 6, 4.0))
sketch8.addConstraint(Sketcher.Constraint("Radius", 3, 15.0))
sketch8.addConstraint(Sketcher.Constraint("Radius", 4, 25.0))
sketch8.addConstraint(Sketcher.Constraint("DistanceY", 3, 3, 5, 3, 11.0))
sketch8.addConstraint(Sketcher.Constraint("DistanceY", -1, 1, 3, 3, 7.5))
sketch8.addConstraint(Sketcher.Constraint("DistanceX", -1, 1, 6, 3, 138.3))
sketch8.addConstraint(Sketcher.Constraint("DistanceX", -1, 1, 0, 2, 88.5))
sketch8.addConstraint(Sketcher.Constraint("DistanceY", 6, 3, 7, 3, 17.5))
sketch8.addConstraint(Sketcher.Constraint("DistanceY", -1, 1, 6, 3, 5.25))
sketch8.addConstraint(Sketcher.Constraint("Radius", 1, 79.407787))
sketch8.addConstraint(Sketcher.Constraint("DistanceX", 4, 3, 5, 3, 6.895))
sketch8.addConstraint(Sketcher.Constraint("DistanceX", 0, 2, 0, 1, 48.700362))
sketch8.addConstraint(Sketcher.Constraint("DistanceX", 2, 1, 2, 2, 42.188159))
sketch8.setExpression("Constraints[11]", "Params.sketch8_diameter")
sketch8.setExpression("Constraints[12]", "Params.sketch8_radius")
sketch8.setExpression("Constraints[13]", "Params.sketch8_radius2")
pad2 = doc.addObject("PartDesign::Pad", "Pad001")
body.addObject(pad2)
pad2.Profile = sketch8
pad2.setExpression("Length", "Params.pad2_length")
pad2.Reversed = True
doc.recompute()

fillet = doc.addObject("PartDesign::Fillet", "Fillet")
body.addObject(fillet)
fillet.Base = (pad2, edges_at(pad2, [(97.385, 5.5, -7.5)]))
fillet.setExpression("Radius", "Params.fillet_radius")

doc.recompute()
